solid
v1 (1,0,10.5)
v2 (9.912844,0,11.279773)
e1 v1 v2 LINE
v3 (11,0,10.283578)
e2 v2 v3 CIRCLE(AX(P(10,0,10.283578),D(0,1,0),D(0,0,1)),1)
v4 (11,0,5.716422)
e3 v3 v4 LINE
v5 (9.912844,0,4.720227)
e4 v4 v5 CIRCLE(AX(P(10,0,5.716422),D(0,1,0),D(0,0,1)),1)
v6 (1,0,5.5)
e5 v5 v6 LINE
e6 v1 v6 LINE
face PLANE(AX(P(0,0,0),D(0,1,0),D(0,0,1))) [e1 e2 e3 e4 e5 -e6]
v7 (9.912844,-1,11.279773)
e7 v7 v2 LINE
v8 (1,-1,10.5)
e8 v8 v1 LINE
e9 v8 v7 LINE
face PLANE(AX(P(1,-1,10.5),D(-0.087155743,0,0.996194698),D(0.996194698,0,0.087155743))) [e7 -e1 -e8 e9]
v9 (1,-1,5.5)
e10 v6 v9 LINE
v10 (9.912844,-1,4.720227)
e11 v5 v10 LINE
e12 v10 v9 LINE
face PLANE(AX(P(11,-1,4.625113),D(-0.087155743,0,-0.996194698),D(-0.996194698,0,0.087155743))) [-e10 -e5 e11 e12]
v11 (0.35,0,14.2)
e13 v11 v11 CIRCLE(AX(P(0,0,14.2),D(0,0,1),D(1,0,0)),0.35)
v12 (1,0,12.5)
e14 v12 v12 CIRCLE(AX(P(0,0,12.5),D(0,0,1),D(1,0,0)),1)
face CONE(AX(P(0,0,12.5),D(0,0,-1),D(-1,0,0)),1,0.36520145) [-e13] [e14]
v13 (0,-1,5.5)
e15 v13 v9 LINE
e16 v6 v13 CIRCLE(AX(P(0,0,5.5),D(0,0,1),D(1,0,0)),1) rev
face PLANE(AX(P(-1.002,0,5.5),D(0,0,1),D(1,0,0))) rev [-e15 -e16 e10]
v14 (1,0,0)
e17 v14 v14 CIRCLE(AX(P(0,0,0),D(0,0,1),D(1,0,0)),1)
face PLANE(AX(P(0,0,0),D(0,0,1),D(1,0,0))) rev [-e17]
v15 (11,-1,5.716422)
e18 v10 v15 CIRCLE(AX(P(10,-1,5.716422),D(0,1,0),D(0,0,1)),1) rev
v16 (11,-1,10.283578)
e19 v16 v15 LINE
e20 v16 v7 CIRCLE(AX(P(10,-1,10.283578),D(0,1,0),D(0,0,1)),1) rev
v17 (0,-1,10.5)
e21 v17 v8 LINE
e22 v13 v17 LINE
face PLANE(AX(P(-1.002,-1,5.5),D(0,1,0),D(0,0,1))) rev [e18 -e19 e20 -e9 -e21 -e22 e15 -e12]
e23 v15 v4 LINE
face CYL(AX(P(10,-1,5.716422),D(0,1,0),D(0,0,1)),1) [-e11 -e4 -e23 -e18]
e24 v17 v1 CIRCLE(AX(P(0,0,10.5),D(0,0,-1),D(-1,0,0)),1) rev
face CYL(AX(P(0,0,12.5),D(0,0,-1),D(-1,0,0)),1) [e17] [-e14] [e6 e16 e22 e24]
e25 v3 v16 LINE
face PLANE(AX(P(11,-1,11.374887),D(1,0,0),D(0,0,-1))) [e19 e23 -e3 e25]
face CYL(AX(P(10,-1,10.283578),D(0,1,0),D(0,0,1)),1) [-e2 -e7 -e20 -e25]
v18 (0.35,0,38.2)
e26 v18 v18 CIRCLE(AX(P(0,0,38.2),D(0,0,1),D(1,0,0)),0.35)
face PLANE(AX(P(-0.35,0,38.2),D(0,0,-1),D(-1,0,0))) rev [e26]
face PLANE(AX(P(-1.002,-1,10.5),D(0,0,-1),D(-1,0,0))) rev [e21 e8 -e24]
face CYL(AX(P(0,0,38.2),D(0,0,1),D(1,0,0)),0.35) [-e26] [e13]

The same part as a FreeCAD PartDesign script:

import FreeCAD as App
import Part
import Sketcher
from FreeCAD import Vector
Q = App.Units.Quantity


def edges_at(feature, points):
    """Names of the edges that pass closest to the given points."""
    edges = feature.Shape.Edges
    near = lambda p: min(range(len(edges)), key=lambda i: edges[i].distToShape(Part.Vertex(*p))[0])
    return sorted({f"Edge{near(p) + 1}" for p in points})


def add_polygon(sketch, points):
    """Adds a closed chain of lines whose ends are joined by coincident constraints."""
    first, n = sketch.GeometryCount, len(points)
    for a, b in zip(points, points[1:] + points[:1]):
        sketch.addGeometry(Part.LineSegment(App.Vector(*a, 0), App.Vector(*b, 0)), False)
    for i in range(n):
        sketch.addConstraint(Sketcher.Constraint("Coincident", first + i, 2, first + (i + 1) % n, 1))

doc = App.newDocument("Part")
body = doc.addObject("PartDesign::Body", "Body")

# Sketch on XY plane
sketch1 = body.newObject("Sketcher::SketchObject", "Sketch")
sketch1.AttachmentSupport = (doc.getObject("XY_Plane"), [""])
sketch1.MapMode = "FlatFace"
sketch1.addGeometry(Part.Circle(Vector(0, 0, 0), Vector(0, 0, 1), 1), False)
sketch1.addConstraint([
    Sketcher.Constraint("Coincident", 0, 3, -1, 1),
    Sketcher.Constraint("Diameter", 0, Q("2 mm")),
])
pad1 = body.newObject("PartDesign::Pad", "Pad")
pad1.Profile = sketch1
pad1.Length = 12.5
body2 = doc.addObject("PartDesign::Body", "Body001")

# Sketch on XZ plane
sketch2 = body2.newObject("Sketcher::SketchObject", "Sketch001")
sketch2.AttachmentSupport = (doc.getObject("XZ_Plane001"), [""])
sketch2.MapMode = "FlatFace"
add_polygon(sketch2, [(1, 6), (1, 10), (11, 11), (11, 5)])  # lines 0-3
sketch2.addConstraint([
    Sketcher.Constraint("Vertical", 0),
    Sketcher.Constraint("Vertical", 2),
    Sketcher.Constraint("Equal", 1, 3),
    Sketcher.Constraint("DistanceY", 0, 1, 0, 2, Q("5 mm")),
    Sketcher.Constraint("Angle", 1, Q("5 deg")),
    Sketcher.Constraint("DistanceX", -1, 1, 0, 2, Q("1 mm")),
    Sketcher.Constraint("DistanceX", -1, 1, 1, 2, Q("11 mm")),
    Sketcher.Constraint("DistanceY", -1, 1, 0, 2, Q("10.5 mm")),
])
pad2 = body2.newObject("PartDesign::Pad", "Pad001")
pad2.Profile = sketch2
pad2.Length = 1
body.AllowCompound = True
doc.recompute()

boolean = body.newObject("PartDesign::Boolean", "Boolean")
boolean.Type = "Fuse"
boolean.addObjects([body2])

# Sketch on YZ plane
sketch3 = body.newObject("Sketcher::SketchObject", "Sketch002")
sketch3.AttachmentSupport = (doc.getObject("YZ_Plane"), [""])
sketch3.MapMode = "FlatFace"
sketch3.AttachmentOffset = App.Placement(Vector(0, 0, 1), App.Rotation())
add_polygon(sketch3, [(0, 5.5), (-1, 5.5), (-1, 10.5), (0, 10.5)])  # lines 0-3
sketch3.addConstraint([
    Sketcher.Constraint("Horizontal", 0),
    Sketcher.Constraint("Vertical", 1),
    Sketcher.Constraint("Horizontal", 2),
    Sketcher.Constraint("Vertical", 3),
    Sketcher.Constraint("PointOnObject", 2, 2, -2),
    Sketcher.Constraint("DistanceX", 0, 2, 0, 1, Q("1 mm")),
    Sketcher.Constraint("DistanceY", 1, 1, 1, 2, Q("5 mm")),
    Sketcher.Constraint("DistanceY", -1, 1, 0, 2, Q("5.5 mm")),
])
pad3 = body.newObject("PartDesign::Pad", "Pad002")
pad3.Profile = sketch3
pad3.Length = 1
pad3.Reversed = True

# Sketch on XZ plane
sketch4 = body.newObject("Sketcher::SketchObject", "Sketch003")
sketch4.AttachmentSupport = (doc.getObject("XZ_Plane"), [""])
sketch4.MapMode = "FlatFace"
add_polygon(sketch4, [(-1, 12.5), (-0.35, 14.2), (-0.35, 38.2), (0, 38.2), (0, 12.5)])  # lines 0-4
sketch4.addConstraint([
    Sketcher.Constraint("Vertical", 1),
    Sketcher.Constraint("Horizontal", 2),
    Sketcher.Constraint("Vertical", 3),
    Sketcher.Constraint("Horizontal", 4),
    Sketcher.Constraint("PointOnObject", 2, 2, -2),
    Sketcher.Constraint("DistanceX", 4, 2, 4, 1, Q("1 mm")),
    Sketcher.Constraint("DistanceY", 1, 1, 1, 2, Q("24 mm")),
    Sketcher.Constraint("DistanceY", 3, 2, 3, 1, Q("25.7 mm")),
    Sketcher.Constraint("DistanceX", 2, 1, 2, 2, Q("0.35 mm")),
    Sketcher.Constraint("DistanceY", -1, 1, 0, 2, Q("14.2 mm")),
])
revolution = body.newObject("PartDesign::Revolution", "Revolution")
revolution.Profile = sketch4
revolution.ReferenceAxis = (sketch4, ["V_Axis"])
revolution.Angle = 360
doc.recompute()

fillet = body.newObject("PartDesign::Fillet", "Fillet")
fillet.Base = (revolution, edges_at(revolution, [(11, -0.5, 11.375), (11, -0.5, 4.625)]))
fillet.Radius = 1

doc.recompute()
